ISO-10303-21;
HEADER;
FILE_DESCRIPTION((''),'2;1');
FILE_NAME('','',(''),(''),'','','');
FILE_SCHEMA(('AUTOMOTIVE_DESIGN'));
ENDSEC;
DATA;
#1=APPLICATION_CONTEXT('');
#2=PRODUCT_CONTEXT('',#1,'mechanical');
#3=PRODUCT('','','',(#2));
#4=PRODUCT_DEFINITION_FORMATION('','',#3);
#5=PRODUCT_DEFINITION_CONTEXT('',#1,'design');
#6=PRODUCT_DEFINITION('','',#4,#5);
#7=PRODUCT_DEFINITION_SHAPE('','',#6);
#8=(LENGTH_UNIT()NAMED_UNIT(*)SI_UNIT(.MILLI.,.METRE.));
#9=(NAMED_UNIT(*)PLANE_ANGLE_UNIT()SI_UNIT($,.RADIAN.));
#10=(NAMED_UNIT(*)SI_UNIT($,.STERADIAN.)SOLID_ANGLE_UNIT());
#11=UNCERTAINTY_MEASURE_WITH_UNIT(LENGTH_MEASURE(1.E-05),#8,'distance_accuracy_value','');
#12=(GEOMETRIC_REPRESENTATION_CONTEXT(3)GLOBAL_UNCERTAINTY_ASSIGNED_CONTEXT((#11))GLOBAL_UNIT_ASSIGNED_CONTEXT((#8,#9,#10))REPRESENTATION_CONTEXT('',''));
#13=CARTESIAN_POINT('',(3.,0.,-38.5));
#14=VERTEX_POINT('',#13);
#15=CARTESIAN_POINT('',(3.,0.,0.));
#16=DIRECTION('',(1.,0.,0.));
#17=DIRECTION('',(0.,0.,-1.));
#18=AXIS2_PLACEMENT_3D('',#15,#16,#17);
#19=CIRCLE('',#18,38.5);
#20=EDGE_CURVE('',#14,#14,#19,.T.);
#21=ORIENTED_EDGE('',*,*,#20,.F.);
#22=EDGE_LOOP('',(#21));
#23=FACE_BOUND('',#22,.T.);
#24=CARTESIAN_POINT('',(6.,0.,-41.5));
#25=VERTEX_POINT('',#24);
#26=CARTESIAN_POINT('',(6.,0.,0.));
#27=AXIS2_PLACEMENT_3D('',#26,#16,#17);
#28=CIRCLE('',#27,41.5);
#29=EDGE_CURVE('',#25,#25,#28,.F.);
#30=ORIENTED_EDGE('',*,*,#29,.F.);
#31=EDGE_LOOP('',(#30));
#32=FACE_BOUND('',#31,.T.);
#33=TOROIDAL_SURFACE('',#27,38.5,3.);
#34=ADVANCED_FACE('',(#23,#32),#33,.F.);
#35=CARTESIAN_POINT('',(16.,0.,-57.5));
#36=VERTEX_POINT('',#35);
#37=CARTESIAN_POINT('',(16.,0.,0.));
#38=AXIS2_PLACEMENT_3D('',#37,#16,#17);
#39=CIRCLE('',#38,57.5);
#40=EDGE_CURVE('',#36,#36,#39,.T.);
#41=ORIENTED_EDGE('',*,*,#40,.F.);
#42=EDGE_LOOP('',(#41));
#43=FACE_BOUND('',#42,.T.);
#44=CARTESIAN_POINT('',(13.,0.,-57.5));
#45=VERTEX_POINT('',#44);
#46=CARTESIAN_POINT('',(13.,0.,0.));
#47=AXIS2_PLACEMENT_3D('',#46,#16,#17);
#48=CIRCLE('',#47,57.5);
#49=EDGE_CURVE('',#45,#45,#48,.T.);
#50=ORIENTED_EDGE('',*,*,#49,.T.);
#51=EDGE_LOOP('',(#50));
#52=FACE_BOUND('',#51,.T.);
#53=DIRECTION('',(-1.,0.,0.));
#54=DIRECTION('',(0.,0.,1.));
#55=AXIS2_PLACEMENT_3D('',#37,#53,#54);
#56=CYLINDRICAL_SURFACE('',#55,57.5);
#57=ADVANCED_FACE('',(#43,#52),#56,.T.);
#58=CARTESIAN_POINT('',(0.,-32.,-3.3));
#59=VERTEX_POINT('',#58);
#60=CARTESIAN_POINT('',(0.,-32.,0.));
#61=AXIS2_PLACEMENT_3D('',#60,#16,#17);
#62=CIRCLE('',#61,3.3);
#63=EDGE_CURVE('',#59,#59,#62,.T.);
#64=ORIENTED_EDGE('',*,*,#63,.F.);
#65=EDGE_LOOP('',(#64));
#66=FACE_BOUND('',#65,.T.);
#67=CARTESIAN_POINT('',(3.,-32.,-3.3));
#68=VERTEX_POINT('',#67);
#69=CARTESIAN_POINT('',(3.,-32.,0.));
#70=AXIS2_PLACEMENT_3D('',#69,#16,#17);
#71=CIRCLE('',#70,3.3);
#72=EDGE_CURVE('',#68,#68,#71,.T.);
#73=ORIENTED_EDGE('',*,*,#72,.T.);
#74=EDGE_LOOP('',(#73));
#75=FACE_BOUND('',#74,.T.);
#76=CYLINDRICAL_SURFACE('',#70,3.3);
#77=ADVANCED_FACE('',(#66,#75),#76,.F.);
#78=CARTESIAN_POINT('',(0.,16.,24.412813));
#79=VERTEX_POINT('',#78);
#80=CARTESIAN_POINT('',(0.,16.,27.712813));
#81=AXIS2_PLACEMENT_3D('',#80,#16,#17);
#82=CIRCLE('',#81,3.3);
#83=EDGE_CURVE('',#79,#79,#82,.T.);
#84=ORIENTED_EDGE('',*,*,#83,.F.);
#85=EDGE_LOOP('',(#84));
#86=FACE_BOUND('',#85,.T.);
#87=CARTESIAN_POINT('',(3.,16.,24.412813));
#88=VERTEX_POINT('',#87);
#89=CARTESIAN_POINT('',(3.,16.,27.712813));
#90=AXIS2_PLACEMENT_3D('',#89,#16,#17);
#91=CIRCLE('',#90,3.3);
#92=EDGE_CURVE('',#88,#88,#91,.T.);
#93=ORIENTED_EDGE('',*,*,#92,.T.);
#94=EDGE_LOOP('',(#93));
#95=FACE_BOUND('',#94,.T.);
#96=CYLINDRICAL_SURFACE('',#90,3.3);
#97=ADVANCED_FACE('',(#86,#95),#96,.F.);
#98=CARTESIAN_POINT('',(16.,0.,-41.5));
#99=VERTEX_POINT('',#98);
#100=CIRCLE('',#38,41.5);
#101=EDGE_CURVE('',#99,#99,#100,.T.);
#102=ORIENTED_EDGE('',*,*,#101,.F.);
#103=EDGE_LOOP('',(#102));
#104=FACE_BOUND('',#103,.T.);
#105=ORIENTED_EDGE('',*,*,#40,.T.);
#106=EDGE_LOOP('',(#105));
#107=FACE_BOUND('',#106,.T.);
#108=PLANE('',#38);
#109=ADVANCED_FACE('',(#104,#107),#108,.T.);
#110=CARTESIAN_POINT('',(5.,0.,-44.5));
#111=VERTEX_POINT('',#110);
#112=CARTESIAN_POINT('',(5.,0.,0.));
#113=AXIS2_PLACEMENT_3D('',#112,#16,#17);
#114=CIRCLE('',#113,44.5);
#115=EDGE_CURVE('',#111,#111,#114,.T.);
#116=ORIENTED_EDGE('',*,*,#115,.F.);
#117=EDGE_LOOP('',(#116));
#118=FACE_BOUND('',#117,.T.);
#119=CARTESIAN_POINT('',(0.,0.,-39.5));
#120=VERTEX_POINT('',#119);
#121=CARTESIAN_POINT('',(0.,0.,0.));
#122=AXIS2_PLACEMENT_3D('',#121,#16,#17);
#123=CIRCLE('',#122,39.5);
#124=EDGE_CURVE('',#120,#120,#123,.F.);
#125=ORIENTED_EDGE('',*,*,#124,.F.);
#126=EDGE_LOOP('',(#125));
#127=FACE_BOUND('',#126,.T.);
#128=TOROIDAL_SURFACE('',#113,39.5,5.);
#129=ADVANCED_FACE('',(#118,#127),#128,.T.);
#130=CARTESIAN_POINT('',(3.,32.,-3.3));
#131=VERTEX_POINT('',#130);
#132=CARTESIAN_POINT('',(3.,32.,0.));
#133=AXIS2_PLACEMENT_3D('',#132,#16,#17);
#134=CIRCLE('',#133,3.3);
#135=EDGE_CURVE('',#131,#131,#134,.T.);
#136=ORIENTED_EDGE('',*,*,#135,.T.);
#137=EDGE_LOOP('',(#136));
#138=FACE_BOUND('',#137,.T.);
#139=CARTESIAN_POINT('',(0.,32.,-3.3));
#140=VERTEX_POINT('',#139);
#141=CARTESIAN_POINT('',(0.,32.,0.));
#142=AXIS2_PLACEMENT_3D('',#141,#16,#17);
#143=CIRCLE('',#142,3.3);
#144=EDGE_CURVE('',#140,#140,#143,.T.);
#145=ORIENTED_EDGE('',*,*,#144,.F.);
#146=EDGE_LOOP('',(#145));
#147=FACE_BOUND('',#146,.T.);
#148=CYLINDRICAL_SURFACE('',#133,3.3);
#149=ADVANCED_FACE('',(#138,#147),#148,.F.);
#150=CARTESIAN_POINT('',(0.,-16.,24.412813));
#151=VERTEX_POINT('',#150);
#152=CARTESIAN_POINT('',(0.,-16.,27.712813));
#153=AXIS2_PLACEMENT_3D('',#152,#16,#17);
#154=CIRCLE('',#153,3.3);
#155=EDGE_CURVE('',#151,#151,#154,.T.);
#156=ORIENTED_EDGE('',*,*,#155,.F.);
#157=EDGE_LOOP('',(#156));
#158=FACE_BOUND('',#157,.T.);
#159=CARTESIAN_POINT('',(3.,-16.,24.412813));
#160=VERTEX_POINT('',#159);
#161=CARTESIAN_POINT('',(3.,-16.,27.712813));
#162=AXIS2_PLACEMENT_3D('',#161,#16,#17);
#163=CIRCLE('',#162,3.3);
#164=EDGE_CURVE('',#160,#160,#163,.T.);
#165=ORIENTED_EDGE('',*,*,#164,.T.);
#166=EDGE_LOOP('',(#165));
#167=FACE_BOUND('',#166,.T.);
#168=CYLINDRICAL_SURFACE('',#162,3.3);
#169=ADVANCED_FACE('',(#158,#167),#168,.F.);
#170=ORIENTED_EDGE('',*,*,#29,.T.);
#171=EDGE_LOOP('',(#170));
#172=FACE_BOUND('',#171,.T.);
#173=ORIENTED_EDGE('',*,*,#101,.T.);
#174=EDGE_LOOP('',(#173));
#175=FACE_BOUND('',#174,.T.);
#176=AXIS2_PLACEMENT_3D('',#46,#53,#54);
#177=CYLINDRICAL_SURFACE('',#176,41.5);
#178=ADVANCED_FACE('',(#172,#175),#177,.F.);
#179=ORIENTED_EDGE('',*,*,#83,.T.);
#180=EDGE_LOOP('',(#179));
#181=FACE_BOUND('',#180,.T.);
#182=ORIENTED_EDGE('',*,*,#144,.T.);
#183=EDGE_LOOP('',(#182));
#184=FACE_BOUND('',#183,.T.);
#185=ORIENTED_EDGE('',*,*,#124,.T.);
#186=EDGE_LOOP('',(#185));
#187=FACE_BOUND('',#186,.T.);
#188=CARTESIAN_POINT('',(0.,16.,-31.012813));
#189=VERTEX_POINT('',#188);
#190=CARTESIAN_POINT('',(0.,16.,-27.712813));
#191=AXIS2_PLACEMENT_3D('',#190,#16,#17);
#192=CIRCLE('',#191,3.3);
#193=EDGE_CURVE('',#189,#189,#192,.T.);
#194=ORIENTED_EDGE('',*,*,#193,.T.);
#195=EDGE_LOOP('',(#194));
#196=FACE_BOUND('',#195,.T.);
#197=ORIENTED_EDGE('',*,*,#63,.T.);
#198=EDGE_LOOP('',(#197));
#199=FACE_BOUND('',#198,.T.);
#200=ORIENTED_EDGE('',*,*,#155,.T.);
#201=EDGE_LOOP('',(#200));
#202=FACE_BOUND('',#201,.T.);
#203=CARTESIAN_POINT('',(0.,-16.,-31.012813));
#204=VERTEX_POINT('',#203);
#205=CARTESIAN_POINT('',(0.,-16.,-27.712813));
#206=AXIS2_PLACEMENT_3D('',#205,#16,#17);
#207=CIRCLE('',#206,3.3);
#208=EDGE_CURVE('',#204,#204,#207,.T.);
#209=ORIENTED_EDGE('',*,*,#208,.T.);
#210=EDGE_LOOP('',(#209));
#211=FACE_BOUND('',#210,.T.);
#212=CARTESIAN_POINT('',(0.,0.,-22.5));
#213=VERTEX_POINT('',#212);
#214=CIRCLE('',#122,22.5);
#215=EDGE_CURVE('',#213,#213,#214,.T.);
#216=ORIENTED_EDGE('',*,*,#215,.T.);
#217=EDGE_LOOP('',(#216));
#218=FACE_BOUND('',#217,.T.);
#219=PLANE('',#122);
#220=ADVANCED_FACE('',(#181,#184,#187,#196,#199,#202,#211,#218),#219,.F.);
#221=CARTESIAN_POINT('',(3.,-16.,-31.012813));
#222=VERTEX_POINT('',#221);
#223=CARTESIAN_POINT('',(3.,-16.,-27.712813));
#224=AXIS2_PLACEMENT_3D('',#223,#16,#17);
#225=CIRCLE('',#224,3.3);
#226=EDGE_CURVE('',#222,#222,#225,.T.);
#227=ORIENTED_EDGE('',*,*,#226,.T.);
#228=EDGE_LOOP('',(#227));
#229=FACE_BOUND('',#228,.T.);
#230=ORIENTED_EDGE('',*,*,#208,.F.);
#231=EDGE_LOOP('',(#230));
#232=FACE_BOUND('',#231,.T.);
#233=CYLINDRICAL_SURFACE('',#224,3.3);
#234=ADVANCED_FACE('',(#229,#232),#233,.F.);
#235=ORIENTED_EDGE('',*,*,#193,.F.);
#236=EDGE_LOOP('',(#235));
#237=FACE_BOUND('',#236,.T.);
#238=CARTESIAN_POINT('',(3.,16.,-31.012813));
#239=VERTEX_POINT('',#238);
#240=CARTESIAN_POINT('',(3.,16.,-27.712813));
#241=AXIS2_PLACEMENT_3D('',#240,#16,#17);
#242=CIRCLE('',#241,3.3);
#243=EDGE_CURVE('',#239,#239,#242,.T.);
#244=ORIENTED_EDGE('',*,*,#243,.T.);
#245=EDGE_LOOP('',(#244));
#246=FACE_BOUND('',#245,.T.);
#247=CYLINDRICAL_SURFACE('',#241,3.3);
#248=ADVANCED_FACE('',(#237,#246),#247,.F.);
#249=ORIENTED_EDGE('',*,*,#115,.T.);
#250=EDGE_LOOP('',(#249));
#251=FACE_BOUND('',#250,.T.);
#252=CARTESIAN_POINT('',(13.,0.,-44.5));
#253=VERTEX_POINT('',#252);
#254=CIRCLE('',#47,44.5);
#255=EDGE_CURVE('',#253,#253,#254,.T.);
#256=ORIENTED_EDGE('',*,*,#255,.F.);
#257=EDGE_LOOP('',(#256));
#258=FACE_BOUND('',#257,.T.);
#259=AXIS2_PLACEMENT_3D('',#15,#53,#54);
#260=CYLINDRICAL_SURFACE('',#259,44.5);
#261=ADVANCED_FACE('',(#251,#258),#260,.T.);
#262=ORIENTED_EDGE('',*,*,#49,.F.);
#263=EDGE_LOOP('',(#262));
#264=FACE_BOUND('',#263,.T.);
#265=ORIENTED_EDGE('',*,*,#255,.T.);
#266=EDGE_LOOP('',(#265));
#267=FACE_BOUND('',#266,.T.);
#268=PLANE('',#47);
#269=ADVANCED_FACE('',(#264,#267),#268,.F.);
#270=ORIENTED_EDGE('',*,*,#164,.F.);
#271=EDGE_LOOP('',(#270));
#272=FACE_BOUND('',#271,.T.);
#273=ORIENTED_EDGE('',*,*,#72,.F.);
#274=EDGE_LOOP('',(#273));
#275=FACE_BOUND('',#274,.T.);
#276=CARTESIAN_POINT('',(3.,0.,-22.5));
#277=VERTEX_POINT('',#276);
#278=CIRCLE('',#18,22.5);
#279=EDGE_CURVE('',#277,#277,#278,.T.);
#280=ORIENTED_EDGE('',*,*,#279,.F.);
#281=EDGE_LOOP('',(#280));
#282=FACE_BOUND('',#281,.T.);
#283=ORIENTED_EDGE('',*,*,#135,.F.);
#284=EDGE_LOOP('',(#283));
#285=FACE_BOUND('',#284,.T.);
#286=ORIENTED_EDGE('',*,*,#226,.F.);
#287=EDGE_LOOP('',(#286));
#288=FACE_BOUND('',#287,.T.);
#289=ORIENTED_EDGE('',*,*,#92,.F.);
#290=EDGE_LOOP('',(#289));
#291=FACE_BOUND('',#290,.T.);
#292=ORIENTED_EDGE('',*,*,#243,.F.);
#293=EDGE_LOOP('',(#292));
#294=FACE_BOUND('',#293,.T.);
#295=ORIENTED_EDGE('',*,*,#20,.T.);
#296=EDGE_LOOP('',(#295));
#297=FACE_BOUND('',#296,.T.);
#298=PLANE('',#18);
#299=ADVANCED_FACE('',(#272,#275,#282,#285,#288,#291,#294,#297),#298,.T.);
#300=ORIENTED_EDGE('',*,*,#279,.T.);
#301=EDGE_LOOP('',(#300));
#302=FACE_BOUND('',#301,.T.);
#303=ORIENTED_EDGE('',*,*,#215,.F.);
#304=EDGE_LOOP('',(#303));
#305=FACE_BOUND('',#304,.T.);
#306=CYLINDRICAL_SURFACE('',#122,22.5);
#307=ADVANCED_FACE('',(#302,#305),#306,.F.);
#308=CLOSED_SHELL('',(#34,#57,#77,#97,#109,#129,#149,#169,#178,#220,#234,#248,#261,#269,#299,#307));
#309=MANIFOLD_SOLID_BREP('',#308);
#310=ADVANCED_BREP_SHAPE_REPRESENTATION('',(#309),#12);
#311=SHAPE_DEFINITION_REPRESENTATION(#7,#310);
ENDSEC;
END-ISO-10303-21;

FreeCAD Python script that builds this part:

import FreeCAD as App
import Part
import Sketcher

V = App.Vector


def edges_at(feature, points):
    """Names of the edges that pass closest to the given points."""
    edges = feature.Shape.Edges
    near = lambda p: min(range(len(edges)), key=lambda i: edges[i].distToShape(Part.Vertex(*p))[0])
    return sorted({f"Edge{near(p) + 1}" for p in points})

doc = App.newDocument("Part")
params = doc.addObject("Spreadsheet::Sheet", "Params")
for row, (alias, value) in enumerate([
    ("sketch1_diameter", "89 mm"),
    ("pad1_length", "3 mm"),
    ("sketch2_diameter", "89 mm"),
    ("sketch2_diameter2", "83 mm"),
    ("pad2_length", "10 mm"),
    ("sketch3_diameter", "115 mm"),
    ("sketch3_diameter2", "83 mm"),
    ("pad3_length", "3 mm"),
    ("sketch4_diameter", "45 mm"),
    ("fillet_radius", "3 mm"),
    ("fillet2_radius", "5 mm"),
    ("sketch5_diameter", "6.6 mm"),
    ("hole_diameter", "6.6 mm"),
], start=1):
    params.set(f"A{row}", alias)
    params.set(f"B{row}", "=" + value)
    params.setAlias(f"B{row}", alias)

body = doc.addObject("PartDesign::Body", "Body")

# Sketch on YZ plane
sketch1 = body.newObject("Sketcher::SketchObject", "Sketch")
sketch1.AttachmentSupport = (doc.getObject("YZ_Plane"), [""])
sketch1.MapMode = "FlatFace"
sketch1.addGeometry(Part.Circle(V(0, 0, 0), V(0, 0, 1), 44), False)
sketch1.addConstraint([
    Sketcher.Constraint("Coincident", 0, 3, -1, 1),
    Sketcher.Constraint("Diameter", 0, 89.0),
])
sketch1.setExpression("Constraints[1]", "Params.sketch1_diameter")
pad1 = body.newObject("PartDesign::Pad", "Pad")
pad1.Profile = sketch1
pad1.setExpression("Length", "Params.pad1_length")

# Sketch on YZ plane
sketch2 = body.newObject("Sketcher::SketchObject", "Sketch001")
sketch2.AttachmentSupport = (doc.getObject("YZ_Plane"), [""])
sketch2.MapMode = "FlatFace"
sketch2.AttachmentOffset = App.Placement(V(0, 0, 3), App.Rotation())
sketch2.addGeometry([
    Part.Circle(V(0, 0, 0), V(0, 0, 1), 44),
    Part.Circle(V(0, 0, 0), V(0, 0, 1), 42),
], False)
sketch2.addConstraint([
    Sketcher.Constraint("Coincident", 0, 3, -1, 1),
    Sketcher.Constraint("Coincident", 1, 3, -1, 1),
    Sketcher.Constraint("Diameter", 0, 89.0),
    Sketcher.Constraint("Diameter", 1, 83.0),
])
sketch2.setExpression("Constraints[2]", "Params.sketch2_diameter")
sketch2.setExpression("Constraints[3]", "Params.sketch2_diameter2")
pad2 = body.newObject("PartDesign::Pad", "Pad001")
pad2.Profile = sketch2
pad2.setExpression("Length", "Params.pad2_length")

# Sketch on YZ plane
sketch3 = body.newObject("Sketcher::SketchObject", "Sketch002")
sketch3.AttachmentSupport = (doc.getObject("YZ_Plane"), [""])
sketch3.MapMode = "FlatFace"
sketch3.AttachmentOffset = App.Placement(V(0, 0, 13), App.Rotation())
sketch3.addGeometry([
    Part.Circle(V(0, 0, 0), V(0, 0, 1), 58),
    Part.Circle(V(0, 0, 0), V(0, 0, 1), 42),
], False)
sketch3.addConstraint([
    Sketcher.Constraint("Coincident", 0, 3, -1, 1),
    Sketcher.Constraint("Coincident", 1, 3, -1, 1),
    Sketcher.Constraint("Diameter", 0, 115.0),
    Sketcher.Constraint("Diameter", 1, 83.0),
])
sketch3.setExpression("Constraints[2]", "Params.sketch3_diameter")
sketch3.setExpression("Constraints[3]", "Params.sketch3_diameter2")
pad3 = body.newObject("PartDesign::Pad", "Pad002")
pad3.Profile = sketch3
pad3.setExpression("Length", "Params.pad3_length")

# Sketch on YZ plane
sketch4 = body.newObject("Sketcher::SketchObject", "Sketch003")
sketch4.AttachmentSupport = (doc.getObject("YZ_Plane"), [""])
sketch4.MapMode = "FlatFace"
sketch4.AttachmentOffset = App.Placement(V(0, 0, 3), App.Rotation())
sketch4.addGeometry(Part.Circle(V(0, 0, 0), V(0, 0, 1), 22), False)
sketch4.addConstraint([
    Sketcher.Constraint("Coincident", 0, 3, -1, 1),
    Sketcher.Constraint("Diameter", 0, 45.0),
])
sketch4.setExpression("Constraints[1]", "Params.sketch4_diameter")
pocket1 = body.newObject("PartDesign::Pocket", "Pocket")
pocket1.Profile = sketch4
pocket1.Type = "ThroughAll"
doc.recompute()

fillet = body.newObject("PartDesign::Fillet", "Fillet")
fillet.Base = (pocket1, edges_at(pocket1, [(3, 0, 41.5)]))
fillet.setExpression("Radius", "Params.fillet_radius")
doc.recompute()

fillet2 = body.newObject("PartDesign::Fillet", "Fillet001")
fillet2.Base = (fillet, edges_at(fillet, [(0, 0, 44.5)]))
fillet2.setExpression("Radius", "Params.fillet2_radius")

# Sketch on YZ plane
sketch5 = body.newObject("Sketcher::SketchObject", "Sketch004")
sketch5.AttachmentSupport = (doc.getObject("YZ_Plane"), [""])
sketch5.MapMode = "FlatFace"
sketch5.AttachmentOffset = App.Placement(V(0, 0, 3), App.Rotation())
sketch5.addGeometry(Part.Circle(V(32, 0, 0), V(0, 0, 1), 3.3), False)
sketch5.addConstraint([
    Sketcher.Constraint("PointOnObject", 0, 3, -1),
    Sketcher.Constraint("Diameter", 0, 6.6),
    Sketcher.Constraint("DistanceX", -1, 1, 0, 3, 32.0),
])
sketch5.setExpression("Constraints[1]", "Params.sketch5_diameter")
doc.recompute()
hole = body.newObject("PartDesign::Hole", "Hole")
hole.Profile = sketch5
hole.ThreadType = "None"
hole.setExpression("Diameter", "Params.hole_diameter")
hole.DepthType = "ThroughAll"
doc.recompute()

polarpattern = body.newObject("PartDesign::PolarPattern", "PolarPattern")
polarpattern.Originals = [hole]
polarpattern.Axis = (doc.getObject("X_Axis"), [""])
polarpattern.Angle = 360
polarpattern.Occurrences = 6
body.Tip = polarpattern

doc.recompute()
